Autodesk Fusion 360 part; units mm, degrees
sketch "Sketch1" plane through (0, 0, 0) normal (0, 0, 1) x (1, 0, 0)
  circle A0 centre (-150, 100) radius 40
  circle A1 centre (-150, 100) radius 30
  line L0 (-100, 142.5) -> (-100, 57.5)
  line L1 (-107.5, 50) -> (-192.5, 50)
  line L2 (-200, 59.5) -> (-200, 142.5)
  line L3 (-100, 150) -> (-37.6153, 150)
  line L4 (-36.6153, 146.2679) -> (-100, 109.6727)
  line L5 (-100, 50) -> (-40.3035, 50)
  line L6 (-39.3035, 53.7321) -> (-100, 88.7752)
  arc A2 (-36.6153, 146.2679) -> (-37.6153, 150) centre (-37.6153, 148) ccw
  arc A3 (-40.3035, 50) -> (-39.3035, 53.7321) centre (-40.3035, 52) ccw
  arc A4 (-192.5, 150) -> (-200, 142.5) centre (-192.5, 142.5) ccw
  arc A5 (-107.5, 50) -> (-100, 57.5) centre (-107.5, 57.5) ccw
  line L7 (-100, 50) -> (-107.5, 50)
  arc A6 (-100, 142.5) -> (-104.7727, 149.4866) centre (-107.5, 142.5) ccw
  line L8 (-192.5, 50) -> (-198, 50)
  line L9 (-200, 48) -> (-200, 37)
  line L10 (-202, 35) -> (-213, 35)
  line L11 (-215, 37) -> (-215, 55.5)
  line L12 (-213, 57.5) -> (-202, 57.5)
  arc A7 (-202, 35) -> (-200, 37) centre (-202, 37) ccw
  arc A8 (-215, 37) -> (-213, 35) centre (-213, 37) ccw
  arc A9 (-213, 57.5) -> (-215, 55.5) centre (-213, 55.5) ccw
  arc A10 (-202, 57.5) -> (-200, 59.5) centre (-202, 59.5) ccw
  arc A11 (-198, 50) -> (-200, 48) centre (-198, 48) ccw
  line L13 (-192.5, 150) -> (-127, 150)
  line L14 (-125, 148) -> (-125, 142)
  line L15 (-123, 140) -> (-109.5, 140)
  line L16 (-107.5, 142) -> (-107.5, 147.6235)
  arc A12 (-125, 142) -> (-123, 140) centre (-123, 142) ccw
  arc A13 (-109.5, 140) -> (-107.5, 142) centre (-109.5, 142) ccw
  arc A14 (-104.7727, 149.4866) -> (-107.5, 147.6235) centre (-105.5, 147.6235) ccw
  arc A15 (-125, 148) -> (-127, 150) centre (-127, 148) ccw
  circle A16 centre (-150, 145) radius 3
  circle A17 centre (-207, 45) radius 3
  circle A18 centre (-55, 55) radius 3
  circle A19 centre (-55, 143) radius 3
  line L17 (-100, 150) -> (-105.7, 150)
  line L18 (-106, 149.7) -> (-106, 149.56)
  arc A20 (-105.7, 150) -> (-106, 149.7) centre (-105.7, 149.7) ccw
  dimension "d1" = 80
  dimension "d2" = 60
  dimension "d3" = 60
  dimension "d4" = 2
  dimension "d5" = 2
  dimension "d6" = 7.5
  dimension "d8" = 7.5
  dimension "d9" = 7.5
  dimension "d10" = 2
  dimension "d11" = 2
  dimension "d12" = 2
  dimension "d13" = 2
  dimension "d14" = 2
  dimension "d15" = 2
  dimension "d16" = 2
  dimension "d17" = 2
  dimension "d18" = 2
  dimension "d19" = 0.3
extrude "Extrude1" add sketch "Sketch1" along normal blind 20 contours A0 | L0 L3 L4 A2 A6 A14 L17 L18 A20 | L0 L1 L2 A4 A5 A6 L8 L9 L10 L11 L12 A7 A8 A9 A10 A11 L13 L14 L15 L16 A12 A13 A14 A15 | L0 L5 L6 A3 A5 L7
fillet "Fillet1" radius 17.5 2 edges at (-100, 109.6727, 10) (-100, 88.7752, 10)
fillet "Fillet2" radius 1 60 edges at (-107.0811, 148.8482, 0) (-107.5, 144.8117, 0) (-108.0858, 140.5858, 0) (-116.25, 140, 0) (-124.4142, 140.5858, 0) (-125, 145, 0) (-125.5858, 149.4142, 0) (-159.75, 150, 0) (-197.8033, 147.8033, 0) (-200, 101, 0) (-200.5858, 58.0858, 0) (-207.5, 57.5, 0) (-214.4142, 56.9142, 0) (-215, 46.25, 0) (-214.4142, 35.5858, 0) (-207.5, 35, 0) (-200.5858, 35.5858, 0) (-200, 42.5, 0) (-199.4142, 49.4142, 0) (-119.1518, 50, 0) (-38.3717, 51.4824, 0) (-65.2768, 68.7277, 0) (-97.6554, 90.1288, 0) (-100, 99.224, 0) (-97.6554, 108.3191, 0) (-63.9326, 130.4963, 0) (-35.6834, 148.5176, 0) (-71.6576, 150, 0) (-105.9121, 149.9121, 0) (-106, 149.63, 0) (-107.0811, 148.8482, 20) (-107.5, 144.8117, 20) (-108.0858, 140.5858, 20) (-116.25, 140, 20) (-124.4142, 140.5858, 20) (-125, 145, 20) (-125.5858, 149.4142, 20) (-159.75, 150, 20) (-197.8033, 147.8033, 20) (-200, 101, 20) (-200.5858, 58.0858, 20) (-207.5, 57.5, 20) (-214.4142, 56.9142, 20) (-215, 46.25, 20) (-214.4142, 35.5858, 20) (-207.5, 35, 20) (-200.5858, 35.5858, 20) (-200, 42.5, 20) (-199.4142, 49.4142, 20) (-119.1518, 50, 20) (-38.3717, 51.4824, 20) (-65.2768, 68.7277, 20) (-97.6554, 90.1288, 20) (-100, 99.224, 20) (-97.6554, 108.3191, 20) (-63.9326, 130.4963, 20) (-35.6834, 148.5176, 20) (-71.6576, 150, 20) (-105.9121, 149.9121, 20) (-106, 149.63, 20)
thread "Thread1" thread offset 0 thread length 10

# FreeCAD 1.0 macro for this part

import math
import FreeCAD as App
import Part
import Sketcher

V = App.Vector
Q = App.Units.Quantity


def edges_at(feature, points):
    """Names of the edges that pass closest to the given points."""
    edges = feature.Shape.Edges
    near = lambda p: min(range(len(edges)), key=lambda i: edges[i].distToShape(Part.Vertex(*p))[0])
    return sorted({f"Edge{near(p) + 1}" for p in points})

doc = App.newDocument("Part")
body = doc.addObject("PartDesign::Body", "Body")

# Sketch on XY plane
sketch1 = doc.addObject("Sketcher::SketchObject", "Sketch")
body.addObject(sketch1)
sketch1.AttachmentSupport = (doc.XY_Plane, [""])
sketch1.MapMode = "FlatFace"
sketch1.addGeometry(Part.LineSegment(V(-100, 88.78, 0), V(-100, 109.67, 0)), False)
sketch1.addGeometry(Part.LineSegment(V(-100, 109.67, 0), V(-36.62, 146.27, 0)), False)
sketch1.addGeometry(Part.ArcOfCircle(Part.Circle(V(-37.62, 148, 0), V(0, 0, 1), 2), math.radians(-60), math.radians(90)), False)
sketch1.addGeometry(Part.LineSegment(V(-37.62, 150, 0), V(-105.7, 150, 0)), False)
sketch1.addGeometry(Part.ArcOfCircle(Part.Circle(V(-105.7, 149.7, 0), V(0, 0, 1), 0.3), math.radians(90), math.radians(180)), False)
sketch1.addGeometry(Part.LineSegment(V(-106, 149.7, 0), V(-106, 149.56, 0)), False)
sketch1.addGeometry(Part.ArcOfCircle(Part.Circle(V(-105.5, 147.62, 0), V(0, 0, 1), 2), math.radians(104), math.radians(180)), False)
sketch1.addGeometry(Part.LineSegment(V(-107.5, 147.62, 0), V(-107.5, 142, 0)), False)
sketch1.addGeometry(Part.ArcOfCircle(Part.Circle(V(-109.5, 142, 0), V(0, 0, 1), 2), math.radians(-90), math.radians(0)), False)
sketch1.addGeometry(Part.LineSegment(V(-109.5, 140, 0), V(-123, 140, 0)), False)
sketch1.addGeometry(Part.ArcOfCircle(Part.Circle(V(-123, 142, 0), V(0, 0, 1), 2), math.radians(180), math.radians(270)), False)
sketch1.addGeometry(Part.LineSegment(V(-125, 142, 0), V(-125, 148, 0)), False)
sketch1.addGeometry(Part.ArcOfCircle(Part.Circle(V(-127, 148, 0), V(0, 0, 1), 2), math.radians(0), math.radians(90)), False)
sketch1.addGeometry(Part.LineSegment(V(-127, 150, 0), V(-192.5, 150, 0)), False)
sketch1.addGeometry(Part.ArcOfCircle(Part.Circle(V(-192.5, 142.5, 0), V(0, 0, 1), 7.5), math.radians(90), math.radians(180)), False)
sketch1.addGeometry(Part.LineSegment(V(-200, 142.5, 0), V(-200, 59.5, 0)), False)
sketch1.addGeometry(Part.ArcOfCircle(Part.Circle(V(-202, 59.5, 0), V(0, 0, 1), 2), math.radians(-90), math.radians(0)), False)
sketch1.addGeometry(Part.LineSegment(V(-202, 57.5, 0), V(-213, 57.5, 0)), False)
sketch1.addGeometry(Part.ArcOfCircle(Part.Circle(V(-213, 55.5, 0), V(0, 0, 1), 2), math.radians(90), math.radians(180)), False)
sketch1.addGeometry(Part.LineSegment(V(-215, 55.5, 0), V(-215, 37, 0)), False)
sketch1.addGeometry(Part.ArcOfCircle(Part.Circle(V(-213, 37, 0), V(0, 0, 1), 2), math.radians(180), math.radians(270)), False)
sketch1.addGeometry(Part.LineSegment(V(-213, 35, 0), V(-202, 35, 0)), False)
sketch1.addGeometry(Part.ArcOfCircle(Part.Circle(V(-202, 37, 0), V(0, 0, 1), 2), math.radians(-90), math.radians(0)), False)
sketch1.addGeometry(Part.LineSegment(V(-200, 37, 0), V(-200, 48, 0)), False)
sketch1.addGeometry(Part.ArcOfCircle(Part.Circle(V(-198, 48, 0), V(0, 0, 1), 2), math.radians(90), math.radians(180)), False)
sketch1.addGeometry(Part.LineSegment(V(-198, 50, 0), V(-40.3, 50, 0)), False)
sketch1.addGeometry(Part.ArcOfCircle(Part.Circle(V(-40.3, 52, 0), V(0, 0, 1), 2), math.radians(-90), math.radians(60)), False)
sketch1.addGeometry(Part.LineSegment(V(-39.3, 53.73, 0), V(-100, 88.78, 0)), False)
sketch1.addGeometry(Part.Circle(V(-150, 100, 0), V(0, 0, 1), 30), False)
sketch1.addGeometry(Part.Circle(V(-207, 45, 0), V(0, 0, 1), 3), False)
sketch1.addGeometry(Part.Circle(V(-150, 145, 0), V(0, 0, 1), 3), False)
sketch1.addGeometry(Part.Circle(V(-55, 143, 0), V(0, 0, 1), 3), False)
sketch1.addGeometry(Part.Circle(V(-55, 55, 0), V(0, 0, 1), 3), False)
sketch1.addConstraint(Sketcher.Constraint("Coincident", 0, 2, 1, 1))
sketch1.addConstraint(Sketcher.Constraint("Tangent", 1, 2, 2, 1))
sketch1.addConstraint(Sketcher.Constraint("Tangent", 2, 2, 3, 1))
sketch1.addConstraint(Sketcher.Constraint("Tangent", 3, 2, 4, 1))
sketch1.addConstraint(Sketcher.Constraint("Tangent", 4, 2, 5, 1))
sketch1.addConstraint(Sketcher.Constraint("Coincident", 5, 2, 6, 1))
sketch1.addConstraint(Sketcher.Constraint("Tangent", 6, 2, 7, 1))
sketch1.addConstraint(Sketcher.Constraint("Tangent", 7, 2, 8, 2))
sketch1.addConstraint(Sketcher.Constraint("Tangent", 8, 1, 9, 1))
sketch1.addConstraint(Sketcher.Constraint("Tangent", 9, 2, 10, 2))
sketch1.addConstraint(Sketcher.Constraint("Tangent", 10, 1, 11, 1))
sketch1.addConstraint(Sketcher.Constraint("Tangent", 11, 2, 12, 1))
sketch1.addConstraint(Sketcher.Constraint("Tangent", 12, 2, 13, 1))
sketch1.addConstraint(Sketcher.Constraint("Tangent", 13, 2, 14, 1))
sketch1.addConstraint(Sketcher.Constraint("Tangent", 14, 2, 15, 1))
sketch1.addConstraint(Sketcher.Constraint("Tangent", 15, 2, 16, 2))
sketch1.addConstraint(Sketcher.Constraint("Tangent", 16, 1, 17, 1))
sketch1.addConstraint(Sketcher.Constraint("Tangent", 17, 2, 18, 1))
sketch1.addConstraint(Sketcher.Constraint("Tangent", 18, 2, 19, 1))
sketch1.addConstraint(Sketcher.Constraint("Tangent", 19, 2, 20, 1))
sketch1.addConstraint(Sketcher.Constraint("Tangent", 20, 2, 21, 1))
sketch1.addConstraint(Sketcher.Constraint("Tangent", 21, 2, 22, 1))
sketch1.addConstraint(Sketcher.Constraint("Tangent", 22, 2, 23, 1))
sketch1.addConstraint(Sketcher.Constraint("Tangent", 23, 2, 24, 2))
sketch1.addConstraint(Sketcher.Constraint("Tangent", 24, 1, 25, 1))
sketch1.addConstraint(Sketcher.Constraint("Tangent", 25, 2, 26, 1))
sketch1.addConstraint(Sketcher.Constraint("Tangent", 26, 2, 27, 1))
sketch1.addConstraint(Sketcher.Constraint("Coincident", 27, 2, 0, 1))
sketch1.addConstraint(Sketcher.Constraint("Vertical", 0))
sketch1.addConstraint(Sketcher.Constraint("Horizontal", 3))
sketch1.addConstraint(Sketcher.Constraint("Vertical", 5))
sketch1.addConstraint(Sketcher.Constraint("Vertical", 7))
sketch1.addConstraint(Sketcher.Constraint("Horizontal", 9))
sketch1.addConstraint(Sketcher.Constraint("Vertical", 11))
sketch1.addConstraint(Sketcher.Constraint("Horizontal", 13))
sketch1.addConstraint(Sketcher.Constraint("Vertical", 15))
sketch1.addConstraint(Sketcher.Constraint("Horizontal", 17))
sketch1.addConstraint(Sketcher.Constraint("Vertical", 19))
sketch1.addConstraint(Sketcher.Constraint("Horizontal", 21))
sketch1.addConstraint(Sketcher.Constraint("Vertical", 23))
sketch1.addConstraint(Sketcher.Constraint("Horizontal", 25))
sketch1.addConstraint(Sketcher.Constraint("Equal", 2, 6))
sketch1.addConstraint(Sketcher.Constraint("Equal", 6, 8))
sketch1.addConstraint(Sketcher.Constraint("Equal", 8, 10))
sketch1.addConstraint(Sketcher.Constraint("Equal", 10, 12))
sketch1.addConstraint(Sketcher.Constraint("Equal", 12, 16))
sketch1.addConstraint(Sketcher.Constraint("Equal", 16, 18))
sketch1.addConstraint(Sketcher.Constraint("Equal", 18, 20))
sketch1.addConstraint(Sketcher.Constraint("Equal", 20, 22))
sketch1.addConstraint(Sketcher.Constraint("Equal", 22, 24))
sketch1.addConstraint(Sketcher.Constraint("Equal", 24, 26))
sketch1.addConstraint(Sketcher.Constraint("Equal", 29, 30))
sketch1.addConstraint(Sketcher.Constraint("Equal", 30, 31))
sketch1.addConstraint(Sketcher.Constraint("Equal", 31, 32))
sketch1.addConstraint(Sketcher.Constraint("Horizontal", 2, 3, 12, 3))
sketch1.addConstraint(Sketcher.Constraint("Vertical", 16, 3, 22, 3))
sketch1.addConstraint(Sketcher.Constraint("Vertical", 28, 3, 30, 3))
sketch1.addConstraint(Sketcher.Constraint("Vertical", 31, 3, 32, 3))
sketch1.addConstraint(Sketcher.Constraint("Equal", 21, 23))
sketch1.addConstraint(Sketcher.Constraint("Diameter", 28, 60.0))
sketch1.addConstraint(Sketcher.Constraint("Radius", 2, 2.0))
sketch1.addConstraint(Sketcher.Constraint("Radius", 4, 0.3))
sketch1.addConstraint(Sketcher.Constraint("Radius", 14, 7.5))
sketch1.addConstraint(Sketcher.Constraint("Diameter", 29, 6.0))
sketch1.addConstraint(Sketcher.Constraint("DistanceY", 24, 3, 18, 3, 7.5))
sketch1.addConstraint(Sketcher.Constraint("DistanceX", 7, 2, 27, 2, 7.5))
sketch1.addConstraint(Sketcher.Constraint("DistanceX", 17, 2, 17, 1, 11.0))
sketch1.addConstraint(Sketcher.Constraint("DistanceY", 11, 1, 11, 2, 6.0))
sketch1.addConstraint(Sketcher.Constraint("DistanceY", 15, 2, 15, 1, 83.0))
sketch1.addConstraint(Sketcher.Constraint("Angle", 1, Q("30 deg")))
sketch1.addConstraint(Sketcher.Constraint("Angle", 27, Q("150 deg")))
sketch1.addConstraint(Sketcher.Constraint("DistanceX", 9, 2, 9, 1, 13.5))
sketch1.addConstraint(Sketcher.Constraint("DistanceX", 13, 2, 13, 1, 65.5))
sketch1.addConstraint(Sketcher.Constraint("DistanceY", -1, 1, 2, 3, 148.0))
sketch1.addConstraint(Sketcher.Constraint("DistanceX", 10, 3, -1, 1, 123.0))
sketch1.addConstraint(Sketcher.Constraint("DistanceX", 28, 3, -1, 1, 150.0))
sketch1.addConstraint(Sketcher.Constraint("DistanceY", -1, 1, 28, 3, 100.0))
sketch1.addConstraint(Sketcher.Constraint("DistanceX", 29, 3, -1, 1, 207.0))
sketch1.addConstraint(Sketcher.Constraint("DistanceY", -1, 1, 29, 3, 45.0))
sketch1.addConstraint(Sketcher.Constraint("DistanceY", -1, 1, 30, 3, 145.0))
sketch1.addConstraint(Sketcher.Constraint("DistanceX", 31, 3, -1, 1, 55.0))
sketch1.addConstraint(Sketcher.Constraint("DistanceY", -1, 1, 31, 3, 143.0))
sketch1.addConstraint(Sketcher.Constraint("DistanceY", -1, 1, 32, 3, 55.0))
sketch1.addConstraint(Sketcher.Constraint("DistanceX", 4, 2, -1, 1, 106.0))
sketch1.addConstraint(Sketcher.Constraint("DistanceY", 5, 2, 5, 1, 0.14))
sketch1.addConstraint(Sketcher.Constraint("DistanceX", 3, 2, 3, 1, 68.0847))
sketch1.addConstraint(Sketcher.Constraint("DistanceX", 25, 1, 25, 2, 157.6965))
pad1 = doc.addObject("PartDesign::Pad", "Pad")
body.addObject(pad1)
pad1.Profile = sketch1
pad1.Length = 20
doc.recompute()

fillet = doc.addObject("PartDesign::Fillet", "Fillet")
body.addObject(fillet)
fillet.Base = (pad1, edges_at(pad1, [(-100, 109.673, 10), (-100, 88.775, 10)]))
fillet.Radius = 17.5
doc.recompute()

fillet2 = doc.addObject("PartDesign::Fillet", "Fillet001")
body.addObject(fillet2)
fillet2.Base = (fillet, edges_at(fillet, [
    (-107.081, 148.848, 0),
    (-107.5, 144.812, 0),
    (-108.086, 140.586, 0),
    (-116.25, 140, 0),
    (-124.414, 140.586, 0),
    (-125, 145, 0),
    (-125.586, 149.414, 0),
    (-159.75, 150, 0),
    (-197.803, 147.803, 0),
    (-200, 101, 0),
    (-200.586, 58.086, 0),
    (-207.5, 57.5, 0),
    (-214.414, 56.914, 0),
    (-215, 46.25, 0),
    (-214.414, 35.586, 0),
    (-207.5, 35, 0),
    (-200.586, 35.586, 0),
    (-200, 42.5, 0),
    (-199.414, 49.414, 0),
    (-119.152, 50, 0),
    (-38.372, 51.482, 0),
    (-65.277, 68.728, 0),
    (-97.655, 90.129, 0),
    (-100, 99.224, 0),
    (-97.655, 108.319, 0),
    (-63.933, 130.496, 0),
    (-35.683, 148.518, 0),
    (-71.658, 150, 0),
    (-105.912, 149.912, 0),
    (-106, 149.63, 0),
    (-107.081, 148.848, 20),
    (-107.5, 144.812, 20),
    (-108.086, 140.586, 20),
    (-116.25, 140, 20),
    (-124.414, 140.586, 20),
    (-125, 145, 20),
    (-125.586, 149.414, 20),
    (-159.75, 150, 20),
    (-197.803, 147.803, 20),
    (-200, 101, 20),
    (-200.586, 58.086, 20),
    (-207.5, 57.5, 20),
    (-214.414, 56.914, 20),
    (-215, 46.25, 20),
    (-214.414, 35.586, 20),
    (-207.5, 35, 20),
    (-200.586, 35.586, 20),
    (-200, 42.5, 20),
    (-199.414, 49.414, 20),
    (-119.152, 50, 20),
    (-38.372, 51.482, 20),
    (-65.277, 68.728, 20),
    (-97.655, 90.129, 20),
    (-100, 99.224, 20),
    (-97.655, 108.319, 20),
    (-63.933, 130.496, 20),
    (-35.683, 148.518, 20),
    (-71.658, 150, 20),
    (-105.912, 149.912, 20),
    (-106, 149.63, 20),
]))
fillet2.Radius = 1

doc.recompute()
